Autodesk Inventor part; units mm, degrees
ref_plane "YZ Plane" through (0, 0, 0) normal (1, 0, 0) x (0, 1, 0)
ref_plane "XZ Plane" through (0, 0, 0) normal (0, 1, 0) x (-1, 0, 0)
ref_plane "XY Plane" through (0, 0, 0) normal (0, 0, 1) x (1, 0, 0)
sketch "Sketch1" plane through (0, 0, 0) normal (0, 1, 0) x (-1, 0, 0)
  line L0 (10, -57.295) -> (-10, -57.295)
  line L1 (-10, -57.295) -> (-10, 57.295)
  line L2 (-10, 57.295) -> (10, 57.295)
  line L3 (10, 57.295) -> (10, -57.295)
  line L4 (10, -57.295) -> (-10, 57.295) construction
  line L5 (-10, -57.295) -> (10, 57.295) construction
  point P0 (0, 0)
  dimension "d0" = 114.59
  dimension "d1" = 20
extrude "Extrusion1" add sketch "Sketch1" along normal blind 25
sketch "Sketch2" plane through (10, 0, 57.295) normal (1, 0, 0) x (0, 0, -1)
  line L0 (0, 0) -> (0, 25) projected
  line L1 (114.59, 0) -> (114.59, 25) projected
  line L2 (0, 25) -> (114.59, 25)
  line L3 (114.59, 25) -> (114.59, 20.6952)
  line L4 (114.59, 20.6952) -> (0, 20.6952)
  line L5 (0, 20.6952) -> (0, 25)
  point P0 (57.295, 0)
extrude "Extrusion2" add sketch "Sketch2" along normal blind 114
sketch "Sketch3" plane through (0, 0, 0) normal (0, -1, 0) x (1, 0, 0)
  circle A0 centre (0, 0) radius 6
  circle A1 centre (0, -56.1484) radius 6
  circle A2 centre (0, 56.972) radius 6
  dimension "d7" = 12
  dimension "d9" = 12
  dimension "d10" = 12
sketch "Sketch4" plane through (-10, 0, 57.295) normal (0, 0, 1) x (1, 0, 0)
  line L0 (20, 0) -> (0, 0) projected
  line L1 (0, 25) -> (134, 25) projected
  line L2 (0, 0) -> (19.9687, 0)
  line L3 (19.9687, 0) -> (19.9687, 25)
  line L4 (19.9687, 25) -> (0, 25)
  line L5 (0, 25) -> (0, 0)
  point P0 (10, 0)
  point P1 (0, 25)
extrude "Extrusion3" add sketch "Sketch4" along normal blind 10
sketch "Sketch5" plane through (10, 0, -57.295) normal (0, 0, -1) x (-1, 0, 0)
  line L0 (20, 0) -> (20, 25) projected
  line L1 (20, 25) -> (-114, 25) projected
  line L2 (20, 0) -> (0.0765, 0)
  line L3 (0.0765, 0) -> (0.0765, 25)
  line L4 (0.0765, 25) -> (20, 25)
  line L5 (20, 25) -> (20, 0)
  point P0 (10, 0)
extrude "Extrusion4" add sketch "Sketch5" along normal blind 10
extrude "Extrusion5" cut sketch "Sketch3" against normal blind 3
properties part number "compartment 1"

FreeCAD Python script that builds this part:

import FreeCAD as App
import Part
import Sketcher


def add_polygon(sketch, points):
    """Adds a closed chain of lines whose ends are joined by coincident constraints."""
    first, n = sketch.GeometryCount, len(points)
    for a, b in zip(points, points[1:] + points[:1]):
        sketch.addGeometry(Part.LineSegment(App.Vector(*a, 0), App.Vector(*b, 0)), False)
    for i in range(n):
        sketch.addConstraint(Sketcher.Constraint("Coincident", first + i, 2, first + (i + 1) % n, 1))

doc = App.newDocument("Part")
body = doc.addObject("PartDesign::Body", "Body")

sketch1 = doc.addObject("Sketcher::SketchObject", "Sketch")
body.addObject(sketch1)
sketch1.AttachmentSupport = (doc.XZ_Plane, [""])
sketch1.MapMode = "FlatFace"
add_polygon(sketch1, [(10, -57), (-10, -57), (-10, 57), (10, 57)])
sketch1.addConstraint([
    Sketcher.Constraint("Horizontal", 0),
    Sketcher.Constraint("Vertical", 1),
    Sketcher.Constraint("Horizontal", 2),
    Sketcher.Constraint("Vertical", 3),
    Sketcher.Constraint("Symmetric", 0, 2, 2, 2, -1, 1),
    Sketcher.Constraint("DistanceX", 0, 2, 0, 1, 20.0),
    Sketcher.Constraint("DistanceY", 1, 1, 1, 2, 114.59),
])
pad1 = doc.addObject("PartDesign::Pad", "Pad")
body.addObject(pad1)
pad1.Profile = sketch1
pad1.Length = 25
pad1.Reversed = True

sketch2 = doc.addObject("Sketcher::SketchObject", "Sketch001")
body.addObject(sketch2)
sketch2.AttachmentSupport = (doc.YZ_Plane, [""])
sketch2.MapMode = "FlatFace"
sketch2.AttachmentOffset = App.Placement(App.Vector(0, 0, 10), App.Rotation())
add_polygon(sketch2, [(25, 57.3), (20.7, 57.3), (20.7, -57.3), (25, -57.3)])
sketch2.addConstraint([
    Sketcher.Constraint("Horizontal", 0),
    Sketcher.Constraint("Vertical", 1),
    Sketcher.Constraint("Horizontal", 2),
    Sketcher.Constraint("Vertical", 3),
    Sketcher.Constraint("DistanceX", -1, 1, 2, 2, 25.0),
    Sketcher.Constraint("DistanceY", 1, 2, 1, 1, 114.59),
    Sketcher.Constraint("DistanceX", 0, 2, 0, 1, 4.3048),
    Sketcher.Constraint("DistanceY", -1, 1, 0, 2, 57.295),
])
pad2 = doc.addObject("PartDesign::Pad", "Pad001")
body.addObject(pad2)
pad2.Profile = sketch2
pad2.Length = 114

sketch3 = doc.addObject("Sketcher::SketchObject", "Sketch002")
body.addObject(sketch3)
sketch3.AttachmentSupport = (doc.XY_Plane, [""])
sketch3.MapMode = "FlatFace"
sketch3.AttachmentOffset = App.Placement(App.Vector(0, 0, 57.295), App.Rotation())
add_polygon(sketch3, [(-10, 0), (10, 0), (10, 25), (-10, 25)])
sketch3.addConstraint([
    Sketcher.Constraint("Horizontal", 0),
    Sketcher.Constraint("Vertical", 1),
    Sketcher.Constraint("Horizontal", 2),
    Sketcher.Constraint("Vertical", 3),
    Sketcher.Constraint("PointOnObject", 0, 2, -1),
    Sketcher.Constraint("DistanceY", 1, 1, 1, 2, 25.0),
    Sketcher.Constraint("DistanceX", 2, 2, -1, 1, 10.0),
    Sketcher.Constraint("DistanceX", 0, 1, 0, 2, 19.9687),
])
pad3 = doc.addObject("PartDesign::Pad", "Pad002")
body.addObject(pad3)
pad3.Profile = sketch3
pad3.Length = 10

sketch4 = doc.addObject("Sketcher::SketchObject", "Sketch003")
body.addObject(sketch4)
sketch4.AttachmentSupport = (doc.XY_Plane, [""])
sketch4.MapMode = "FlatFace"
sketch4.AttachmentOffset = App.Placement(App.Vector(0, 0, -57.295), App.Rotation())
add_polygon(sketch4, [(10, 0), (-10, 0), (-10, 25), (10, 25)])
sketch4.addConstraint([
    Sketcher.Constraint("Horizontal", 0),
    Sketcher.Constraint("Vertical", 1),
    Sketcher.Constraint("Horizontal", 2),
    Sketcher.Constraint("Vertical", 3),
    Sketcher.Constraint("PointOnObject", 0, 2, -1),
    Sketcher.Constraint("DistanceY", 1, 1, 1, 2, 25.0),
    Sketcher.Constraint("DistanceX", 0, 2, -1, 1, 10.0),
    Sketcher.Constraint("DistanceX", 0, 2, 0, 1, 19.9235),
])
pad4 = doc.addObject("PartDesign::Pad", "Pad003")
body.addObject(pad4)
pad4.Profile = sketch4
pad4.Length = 10
pad4.Reversed = True

sketch5 = doc.addObject("Sketcher::SketchObject", "Sketch004")
body.addObject(sketch5)
sketch5.AttachmentSupport = (doc.XZ_Plane, [""])
sketch5.MapMode = "FlatFace"
sketch5.addGeometry([
    Part.Circle(App.Vector(0, 0, 0), App.Vector(0, 0, 1), 6),
    Part.Circle(App.Vector(0, -56, 0), App.Vector(0, 0, 1), 6),
    Part.Circle(App.Vector(0, 57, 0), App.Vector(0, 0, 1), 6),
], False)
sketch5.addConstraint([
    Sketcher.Constraint("Coincident", 0, 3, -1, 1),
    Sketcher.Constraint("Equal", 0, 1),
    Sketcher.Constraint("Equal", 1, 2),
    Sketcher.Constraint("PointOnObject", 1, 3, -2),
    Sketcher.Constraint("PointOnObject", 2, 3, -2),
    Sketcher.Constraint("Diameter", 0, 12.0),
    Sketcher.Constraint("DistanceY", -1, 1, 2, 3, 56.972),
    Sketcher.Constraint("DistanceY", 1, 3, -1, 1, 56.1484),
])
pocket1 = doc.addObject("PartDesign::Pocket", "Pocket")
body.addObject(pocket1)
pocket1.Profile = sketch5
pocket1.Length = 3

doc.recompute()
